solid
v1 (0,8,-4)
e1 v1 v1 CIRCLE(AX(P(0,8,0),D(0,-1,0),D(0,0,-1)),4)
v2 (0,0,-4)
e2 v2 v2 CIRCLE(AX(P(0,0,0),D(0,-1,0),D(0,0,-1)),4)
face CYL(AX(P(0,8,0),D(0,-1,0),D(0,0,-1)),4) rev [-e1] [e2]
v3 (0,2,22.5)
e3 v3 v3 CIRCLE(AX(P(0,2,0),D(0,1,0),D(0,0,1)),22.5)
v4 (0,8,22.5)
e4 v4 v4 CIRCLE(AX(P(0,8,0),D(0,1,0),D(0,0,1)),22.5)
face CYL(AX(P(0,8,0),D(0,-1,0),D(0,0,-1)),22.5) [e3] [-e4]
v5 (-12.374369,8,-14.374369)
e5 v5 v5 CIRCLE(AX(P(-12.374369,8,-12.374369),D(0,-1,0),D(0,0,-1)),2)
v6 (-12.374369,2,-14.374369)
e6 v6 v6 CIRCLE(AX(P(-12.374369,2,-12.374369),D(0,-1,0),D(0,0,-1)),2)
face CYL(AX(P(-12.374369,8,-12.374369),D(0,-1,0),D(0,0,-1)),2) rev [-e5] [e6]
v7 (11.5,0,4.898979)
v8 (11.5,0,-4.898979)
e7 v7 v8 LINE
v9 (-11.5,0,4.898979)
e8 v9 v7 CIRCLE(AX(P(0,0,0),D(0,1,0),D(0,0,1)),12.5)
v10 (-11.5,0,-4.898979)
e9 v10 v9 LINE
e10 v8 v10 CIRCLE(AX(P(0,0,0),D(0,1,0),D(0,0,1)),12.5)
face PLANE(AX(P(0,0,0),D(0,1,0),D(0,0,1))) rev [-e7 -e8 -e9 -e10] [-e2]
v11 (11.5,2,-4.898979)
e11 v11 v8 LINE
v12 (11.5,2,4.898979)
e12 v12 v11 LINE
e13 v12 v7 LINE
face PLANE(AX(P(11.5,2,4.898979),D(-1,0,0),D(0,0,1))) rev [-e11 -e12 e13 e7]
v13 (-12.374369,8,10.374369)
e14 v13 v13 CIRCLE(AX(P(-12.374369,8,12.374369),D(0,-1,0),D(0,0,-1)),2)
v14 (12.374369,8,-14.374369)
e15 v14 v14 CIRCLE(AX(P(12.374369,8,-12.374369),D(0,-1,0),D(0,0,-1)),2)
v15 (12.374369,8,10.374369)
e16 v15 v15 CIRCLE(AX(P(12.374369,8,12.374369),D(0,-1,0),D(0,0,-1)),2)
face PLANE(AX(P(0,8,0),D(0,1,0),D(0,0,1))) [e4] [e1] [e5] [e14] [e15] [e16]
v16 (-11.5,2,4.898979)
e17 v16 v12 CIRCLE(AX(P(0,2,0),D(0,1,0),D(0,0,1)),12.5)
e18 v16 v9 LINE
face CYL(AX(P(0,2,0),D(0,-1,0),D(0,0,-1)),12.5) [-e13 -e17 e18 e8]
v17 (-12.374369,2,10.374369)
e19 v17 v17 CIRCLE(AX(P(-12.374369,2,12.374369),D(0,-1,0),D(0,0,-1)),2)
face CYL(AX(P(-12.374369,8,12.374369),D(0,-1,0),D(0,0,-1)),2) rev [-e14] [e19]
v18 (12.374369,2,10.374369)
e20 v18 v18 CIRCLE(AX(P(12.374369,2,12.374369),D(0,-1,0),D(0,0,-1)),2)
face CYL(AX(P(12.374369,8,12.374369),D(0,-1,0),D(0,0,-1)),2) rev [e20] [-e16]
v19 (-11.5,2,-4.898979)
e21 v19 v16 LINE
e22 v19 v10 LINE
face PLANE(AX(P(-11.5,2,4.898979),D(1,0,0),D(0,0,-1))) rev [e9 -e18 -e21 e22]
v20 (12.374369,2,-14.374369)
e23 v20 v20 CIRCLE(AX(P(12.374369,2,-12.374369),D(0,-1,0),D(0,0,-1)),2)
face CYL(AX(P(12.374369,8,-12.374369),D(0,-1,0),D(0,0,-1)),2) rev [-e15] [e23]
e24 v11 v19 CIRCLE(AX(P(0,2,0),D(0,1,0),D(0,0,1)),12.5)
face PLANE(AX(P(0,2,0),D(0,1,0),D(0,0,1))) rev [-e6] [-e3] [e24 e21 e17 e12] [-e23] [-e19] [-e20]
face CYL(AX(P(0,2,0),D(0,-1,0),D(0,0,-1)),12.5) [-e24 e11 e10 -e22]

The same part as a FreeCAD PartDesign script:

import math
import FreeCAD as App
import Part
import Sketcher

V = App.Vector
Q = App.Units.Quantity

doc = App.newDocument("Part")
body = doc.addObject("PartDesign::Body", "Body")

# Sketch on XZ plane
sketch1 = doc.addObject("Sketcher::SketchObject", "Sketch")
body.addObject(sketch1)
sketch1.AttachmentSupport = (doc.XZ_Plane, [""])
sketch1.MapMode = "FlatFace"
sketch1.addGeometry(Part.LineSegment(V(12, 5, 0), V(12, -5, 0)), False)
sketch1.addGeometry(Part.ArcOfCircle(Part.Circle(V(0, 0, 0), V(0, 0, 1), 12), math.radians(-157), math.radians(-23)), False)
sketch1.addGeometry(Part.LineSegment(V(-12, -5, 0), V(-12, 5, 0)), False)
sketch1.addGeometry(Part.ArcOfCircle(Part.Circle(V(0, 0, 0), V(0, 0, 1), 12), math.radians(23), math.radians(157)), False)
sketch1.addConstraint(Sketcher.Constraint("Coincident", 0, 2, 1, 2))
sketch1.addConstraint(Sketcher.Constraint("Coincident", 1, 1, 2, 1))
sketch1.addConstraint(Sketcher.Constraint("Coincident", 2, 2, 3, 2))
sketch1.addConstraint(Sketcher.Constraint("Coincident", 3, 1, 0, 1))
sketch1.addConstraint(Sketcher.Constraint("Vertical", 0))
sketch1.addConstraint(Sketcher.Constraint("Vertical", 2))
sketch1.addConstraint(Sketcher.Constraint("Coincident", 1, 3, -1, 1))
sketch1.addConstraint(Sketcher.Constraint("Coincident", 3, 3, -1, 1))
sketch1.addConstraint(Sketcher.Constraint("Equal", 1, 3))
sketch1.addConstraint(Sketcher.Constraint("Horizontal", 0, 2, 1, 1))
sketch1.addConstraint(Sketcher.Constraint("Radius", 1, Q("12.5 mm")))
sketch1.addConstraint(Sketcher.Constraint("DistanceX", 1, 1, 0, 2, Q("23 mm")))
pad1 = doc.addObject("PartDesign::Pad", "Pad")
body.addObject(pad1)
pad1.Profile = sketch1
pad1.Length = 2
pad1.Reversed = True

# Sketch on XZ plane
sketch2 = doc.addObject("Sketcher::SketchObject", "Sketch001")
body.addObject(sketch2)
sketch2.AttachmentSupport = (doc.XZ_Plane, [""])
sketch2.MapMode = "FlatFace"
sketch2.AttachmentOffset = App.Placement(V(0, 0, -2), App.Rotation())
sketch2.addGeometry(Part.Circle(V(0, 0, 0), V(0, 0, 1), 22), False)
sketch2.addConstraint(Sketcher.Constraint("Coincident", 0, 3, -1, 1))
sketch2.addConstraint(Sketcher.Constraint("Diameter", 0, Q("45 mm")))
pad2 = doc.addObject("PartDesign::Pad", "Pad001")
body.addObject(pad2)
pad2.Profile = sketch2
pad2.Length = 6
pad2.Reversed = True

# Sketch on XZ plane
sketch3 = doc.addObject("Sketcher::SketchObject", "Sketch002")
body.addObject(sketch3)
sketch3.AttachmentSupport = (doc.XZ_Plane, [""])
sketch3.MapMode = "FlatFace"
sketch3.AttachmentOffset = App.Placement(V(0, 0, -2), App.Rotation())
sketch3.addGeometry(Part.Circle(V(-12.4, -12.4, 0), V(0, 0, 1), 2), False)
sketch3.addGeometry(Part.Circle(V(12.4, -12.4, 0), V(0, 0, 1), 2), False)
sketch3.addGeometry(Part.Circle(V(12.4, 12.4, 0), V(0, 0, 1), 2), False)
sketch3.addGeometry(Part.Circle(V(-12.4, 12.4, 0), V(0, 0, 1), 2), False)
sketch3.addConstraint(Sketcher.Constraint("Equal", 0, 1))
sketch3.addConstraint(Sketcher.Constraint("Equal", 1, 2))
sketch3.addConstraint(Sketcher.Constraint("Equal", 2, 3))
sketch3.addConstraint(Sketcher.Constraint("Symmetric", 0, 3, 2, 3, -1, 1))
sketch3.addConstraint(Sketcher.Constraint("Symmetric", 1, 3, 3, 3, -1, 1))
sketch3.addConstraint(Sketcher.Constraint("Symmetric", 0, 3, 1, 3, -2))
sketch3.addConstraint(Sketcher.Constraint("Diameter", 0, Q("4 mm")))
sketch3.addConstraint(Sketcher.Constraint("DistanceX", 0, 3, -1, 1, Q("12.374369 mm")))
sketch3.addConstraint(Sketcher.Constraint("DistanceY", 0, 3, -1, 1, Q("12.374369 mm")))
pocket1 = doc.addObject("PartDesign::Pocket", "Pocket")
body.addObject(pocket1)
pocket1.Profile = sketch3
pocket1.Length = 6

# Sketch on XZ plane
sketch4 = doc.addObject("Sketcher::SketchObject", "Sketch003")
body.addObject(sketch4)
sketch4.AttachmentSupport = (doc.XZ_Plane, [""])
sketch4.MapMode = "FlatFace"
sketch4.addGeometry(Part.Circle(V(0, 0, 0), V(0, 0, 1), 4), False)
sketch4.addConstraint(Sketcher.Constraint("Coincident", 0, 3, -1, 1))
sketch4.addConstraint(Sketcher.Constraint("Diameter", 0, Q("8 mm")))
pocket2 = doc.addObject("PartDesign::Pocket", "Pocket001")
body.addObject(pocket2)
pocket2.Profile = sketch4
pocket2.Type = "ThroughAll"

doc.recompute()
